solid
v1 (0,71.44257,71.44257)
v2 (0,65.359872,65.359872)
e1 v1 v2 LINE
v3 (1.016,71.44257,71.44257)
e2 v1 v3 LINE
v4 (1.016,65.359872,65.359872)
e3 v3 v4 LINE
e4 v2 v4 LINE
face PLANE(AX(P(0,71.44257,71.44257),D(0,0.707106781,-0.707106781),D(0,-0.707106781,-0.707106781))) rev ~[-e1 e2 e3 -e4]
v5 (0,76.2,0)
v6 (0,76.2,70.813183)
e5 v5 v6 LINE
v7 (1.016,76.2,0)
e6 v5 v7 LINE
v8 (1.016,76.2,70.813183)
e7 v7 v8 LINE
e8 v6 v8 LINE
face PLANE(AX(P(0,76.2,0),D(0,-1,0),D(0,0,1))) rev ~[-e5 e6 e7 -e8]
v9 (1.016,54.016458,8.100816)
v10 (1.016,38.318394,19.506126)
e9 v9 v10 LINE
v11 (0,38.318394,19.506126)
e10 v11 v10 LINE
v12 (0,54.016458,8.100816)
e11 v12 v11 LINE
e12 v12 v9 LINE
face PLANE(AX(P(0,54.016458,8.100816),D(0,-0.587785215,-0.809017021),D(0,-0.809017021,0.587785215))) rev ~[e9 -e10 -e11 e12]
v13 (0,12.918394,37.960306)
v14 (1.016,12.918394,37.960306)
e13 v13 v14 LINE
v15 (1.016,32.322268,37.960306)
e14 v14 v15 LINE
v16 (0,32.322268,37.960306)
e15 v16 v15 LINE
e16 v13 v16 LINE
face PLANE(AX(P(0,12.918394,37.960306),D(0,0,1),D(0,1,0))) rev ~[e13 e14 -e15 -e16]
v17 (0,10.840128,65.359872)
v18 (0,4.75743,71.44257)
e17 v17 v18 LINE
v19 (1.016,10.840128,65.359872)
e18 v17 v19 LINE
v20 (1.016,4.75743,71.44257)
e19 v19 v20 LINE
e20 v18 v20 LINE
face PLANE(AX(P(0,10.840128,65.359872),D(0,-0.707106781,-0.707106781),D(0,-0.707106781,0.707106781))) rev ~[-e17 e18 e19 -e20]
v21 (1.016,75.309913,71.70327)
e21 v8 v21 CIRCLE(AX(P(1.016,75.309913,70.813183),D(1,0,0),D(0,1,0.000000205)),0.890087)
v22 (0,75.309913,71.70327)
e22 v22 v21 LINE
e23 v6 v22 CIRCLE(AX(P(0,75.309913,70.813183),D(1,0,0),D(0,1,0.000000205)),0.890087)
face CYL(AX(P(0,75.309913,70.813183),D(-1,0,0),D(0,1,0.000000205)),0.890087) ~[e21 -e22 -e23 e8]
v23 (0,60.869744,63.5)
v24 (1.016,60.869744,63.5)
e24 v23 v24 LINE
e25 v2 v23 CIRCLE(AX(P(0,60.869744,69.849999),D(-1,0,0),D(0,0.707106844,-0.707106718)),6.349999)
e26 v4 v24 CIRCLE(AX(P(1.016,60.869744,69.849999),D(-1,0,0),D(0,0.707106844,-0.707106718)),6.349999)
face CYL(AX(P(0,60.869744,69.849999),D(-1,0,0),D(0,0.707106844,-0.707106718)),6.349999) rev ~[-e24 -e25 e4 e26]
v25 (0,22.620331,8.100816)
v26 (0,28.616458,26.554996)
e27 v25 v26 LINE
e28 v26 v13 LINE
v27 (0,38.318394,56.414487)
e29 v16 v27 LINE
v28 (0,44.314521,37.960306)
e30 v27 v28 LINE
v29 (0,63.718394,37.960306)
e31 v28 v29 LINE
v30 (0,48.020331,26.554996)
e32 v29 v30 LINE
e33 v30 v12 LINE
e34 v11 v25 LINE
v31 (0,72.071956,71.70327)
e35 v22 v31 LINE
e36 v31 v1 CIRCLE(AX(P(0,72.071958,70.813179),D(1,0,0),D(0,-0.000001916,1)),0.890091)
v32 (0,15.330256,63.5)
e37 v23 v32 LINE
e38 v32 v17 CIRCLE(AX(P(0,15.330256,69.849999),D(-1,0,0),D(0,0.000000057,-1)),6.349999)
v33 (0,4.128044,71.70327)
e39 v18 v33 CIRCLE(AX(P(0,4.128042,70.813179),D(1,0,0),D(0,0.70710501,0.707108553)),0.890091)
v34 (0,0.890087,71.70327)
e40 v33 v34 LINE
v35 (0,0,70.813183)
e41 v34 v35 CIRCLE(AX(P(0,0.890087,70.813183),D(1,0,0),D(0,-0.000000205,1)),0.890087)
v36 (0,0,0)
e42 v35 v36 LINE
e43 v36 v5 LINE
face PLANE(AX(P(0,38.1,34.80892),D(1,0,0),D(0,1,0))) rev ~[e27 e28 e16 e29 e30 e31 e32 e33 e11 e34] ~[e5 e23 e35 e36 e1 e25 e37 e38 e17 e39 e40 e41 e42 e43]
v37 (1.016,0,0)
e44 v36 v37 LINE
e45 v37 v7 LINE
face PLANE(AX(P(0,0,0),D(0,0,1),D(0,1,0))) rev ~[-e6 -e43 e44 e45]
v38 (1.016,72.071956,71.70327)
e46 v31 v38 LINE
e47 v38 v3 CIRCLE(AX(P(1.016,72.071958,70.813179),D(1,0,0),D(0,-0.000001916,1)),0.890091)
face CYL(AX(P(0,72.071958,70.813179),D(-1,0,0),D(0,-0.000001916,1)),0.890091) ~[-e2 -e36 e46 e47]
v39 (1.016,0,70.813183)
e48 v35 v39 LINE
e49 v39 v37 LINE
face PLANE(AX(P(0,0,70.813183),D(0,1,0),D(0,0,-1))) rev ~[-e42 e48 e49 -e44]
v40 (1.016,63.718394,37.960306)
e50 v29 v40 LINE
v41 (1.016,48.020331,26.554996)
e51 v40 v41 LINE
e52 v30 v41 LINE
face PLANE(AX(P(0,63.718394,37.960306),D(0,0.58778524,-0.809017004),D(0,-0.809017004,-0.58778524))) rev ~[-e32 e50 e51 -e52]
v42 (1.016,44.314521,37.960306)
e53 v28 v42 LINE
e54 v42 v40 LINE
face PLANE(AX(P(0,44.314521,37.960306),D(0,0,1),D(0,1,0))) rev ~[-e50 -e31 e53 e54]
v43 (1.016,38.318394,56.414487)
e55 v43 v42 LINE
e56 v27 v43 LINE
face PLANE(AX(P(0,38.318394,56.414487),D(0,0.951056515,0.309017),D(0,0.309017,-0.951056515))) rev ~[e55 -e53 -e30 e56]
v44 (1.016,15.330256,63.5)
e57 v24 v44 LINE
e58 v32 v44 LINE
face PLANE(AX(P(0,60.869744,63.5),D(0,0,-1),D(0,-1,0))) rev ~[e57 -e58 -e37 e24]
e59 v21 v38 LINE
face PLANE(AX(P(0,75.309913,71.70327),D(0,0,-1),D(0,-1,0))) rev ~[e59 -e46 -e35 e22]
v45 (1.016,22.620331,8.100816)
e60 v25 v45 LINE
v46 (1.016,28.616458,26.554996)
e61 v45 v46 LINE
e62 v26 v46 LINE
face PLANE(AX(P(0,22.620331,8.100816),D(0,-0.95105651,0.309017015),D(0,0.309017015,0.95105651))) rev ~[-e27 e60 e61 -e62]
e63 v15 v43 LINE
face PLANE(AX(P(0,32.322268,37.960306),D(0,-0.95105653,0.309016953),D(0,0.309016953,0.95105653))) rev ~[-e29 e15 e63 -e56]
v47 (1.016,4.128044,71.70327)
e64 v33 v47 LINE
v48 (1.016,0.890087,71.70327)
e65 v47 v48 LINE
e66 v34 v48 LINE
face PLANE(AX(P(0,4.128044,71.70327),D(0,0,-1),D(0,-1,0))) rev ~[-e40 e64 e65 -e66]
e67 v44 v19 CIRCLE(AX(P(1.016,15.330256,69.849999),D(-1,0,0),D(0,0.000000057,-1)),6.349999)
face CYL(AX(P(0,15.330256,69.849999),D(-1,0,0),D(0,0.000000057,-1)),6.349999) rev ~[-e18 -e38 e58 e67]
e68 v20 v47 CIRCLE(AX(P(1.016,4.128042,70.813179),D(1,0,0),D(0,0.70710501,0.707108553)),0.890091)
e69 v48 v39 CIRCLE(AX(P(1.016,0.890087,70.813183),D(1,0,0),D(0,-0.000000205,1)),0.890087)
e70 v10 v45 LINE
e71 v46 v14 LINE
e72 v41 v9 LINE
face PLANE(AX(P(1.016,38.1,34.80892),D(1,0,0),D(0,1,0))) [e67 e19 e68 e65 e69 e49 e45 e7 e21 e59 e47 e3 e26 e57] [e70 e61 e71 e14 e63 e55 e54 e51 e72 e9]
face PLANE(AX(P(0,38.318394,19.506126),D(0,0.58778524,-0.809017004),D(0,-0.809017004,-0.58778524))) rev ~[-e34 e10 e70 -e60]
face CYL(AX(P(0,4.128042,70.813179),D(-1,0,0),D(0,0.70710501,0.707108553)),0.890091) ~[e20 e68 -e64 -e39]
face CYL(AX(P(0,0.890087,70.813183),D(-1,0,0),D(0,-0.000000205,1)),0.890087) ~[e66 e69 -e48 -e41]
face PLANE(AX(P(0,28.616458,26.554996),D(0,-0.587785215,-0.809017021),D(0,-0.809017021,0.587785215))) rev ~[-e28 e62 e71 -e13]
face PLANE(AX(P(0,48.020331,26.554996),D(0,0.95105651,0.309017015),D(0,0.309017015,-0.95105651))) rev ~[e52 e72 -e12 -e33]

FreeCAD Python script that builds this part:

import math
import FreeCAD as App
import Part
import Sketcher

V = App.Vector
Q = App.Units.Quantity


def add_polygon(sketch, points):
    """Adds a closed chain of lines whose ends are joined by coincident constraints."""
    first, n = sketch.GeometryCount, len(points)
    for a, b in zip(points, points[1:] + points[:1]):
        sketch.addGeometry(Part.LineSegment(App.Vector(*a, 0), App.Vector(*b, 0)), False)
    for i in range(n):
        sketch.addConstraint(Sketcher.Constraint("Coincident", first + i, 2, first + (i + 1) % n, 1))

doc = App.newDocument("Part")
body = doc.addObject("PartDesign::Body", "Body")

# Sketch on YZ plane
sketch1 = body.newObject("Sketcher::SketchObject", "Sketch")
sketch1.AttachmentSupport = (doc.getObject("YZ_Plane"), [""])
sketch1.MapMode = "FlatFace"
sketch1.addGeometry(Part.LineSegment(V(0, 70.8, 0), V(0, 0, 0)), False)  # 0
sketch1.addGeometry(Part.LineSegment(V(0, 0, 0), V(76.2, 0, 0)), False)  # 1
sketch1.addGeometry(Part.LineSegment(V(76.2, 0, 0), V(76.2, 70.8, 0)), False)  # 2
sketch1.addGeometry(Part.ArcOfCircle(Part.Circle(V(75.3, 70.8, 0), V(0, 0, 1), 0.9), math.radians(0), math.radians(90)), False)  # 3
sketch1.addGeometry(Part.LineSegment(V(75.3, 71.7, 0), V(72.1, 71.7, 0)), False)  # 4
sketch1.addGeometry(Part.ArcOfCircle(Part.Circle(V(72.1, 70.8, 0), V(0, 0, 1), 0.9), math.radians(90), math.radians(135)), False)  # 5
sketch1.addGeometry(Part.LineSegment(V(71.4, 71.4, 0), V(65.4, 65.4, 0)), False)  # 6
sketch1.addGeometry(Part.ArcOfCircle(Part.Circle(V(60.9, 69.8, 0), V(0, 0, 1), 6.3), math.radians(-90), math.radians(-45)), False)  # 7
sketch1.addGeometry(Part.LineSegment(V(60.9, 63.5, 0), V(15.3, 63.5, 0)), False)  # 8
sketch1.addGeometry(Part.ArcOfCircle(Part.Circle(V(15.3, 69.8, 0), V(0, 0, 1), 6.3), math.radians(-135), math.radians(-90)), False)  # 9
sketch1.addGeometry(Part.LineSegment(V(10.8, 65.4, 0), V(4.8, 71.4, 0)), False)  # 10
sketch1.addGeometry(Part.ArcOfCircle(Part.Circle(V(4.1, 70.8, 0), V(0, 0, 1), 0.9), math.radians(45), math.radians(90)), False)  # 11
sketch1.addGeometry(Part.LineSegment(V(4.1, 71.7, 0), V(0.9, 71.7, 0)), False)  # 12
sketch1.addGeometry(Part.ArcOfCircle(Part.Circle(V(0.9, 70.8, 0), V(0, 0, 1), 0.9), math.radians(90), math.radians(180)), False)  # 13
add_polygon(sketch1, [(22.6, 8.1), (28.6, 26.6), (12.9, 38), (32.3, 38), (38.3, 56.4), (44.3, 38), (63.7, 38), (48, 26.6), (54, 8.1), (38.3, 19.5)])  # lines 14-23
sketch1.addConstraint(Sketcher.Constraint("Coincident", 0, 2, 1, 1))
sketch1.addConstraint(Sketcher.Constraint("Coincident", 1, 2, 2, 1))
sketch1.addConstraint(Sketcher.Constraint("Tangent", 2, 2, 3, 1))
sketch1.addConstraint(Sketcher.Constraint("Tangent", 3, 2, 4, 1))
sketch1.addConstraint(Sketcher.Constraint("Tangent", 4, 2, 5, 1))
sketch1.addConstraint(Sketcher.Constraint("Coincident", 5, 2, 6, 1))
sketch1.addConstraint(Sketcher.Constraint("Tangent", 6, 2, 7, 2))
sketch1.addConstraint(Sketcher.Constraint("Tangent", 7, 1, 8, 1))
sketch1.addConstraint(Sketcher.Constraint("Tangent", 8, 2, 9, 2))
sketch1.addConstraint(Sketcher.Constraint("Tangent", 9, 1, 10, 1))
sketch1.addConstraint(Sketcher.Constraint("Coincident", 10, 2, 11, 1))
sketch1.addConstraint(Sketcher.Constraint("Tangent", 11, 2, 12, 1))
sketch1.addConstraint(Sketcher.Constraint("Tangent", 12, 2, 13, 1))
sketch1.addConstraint(Sketcher.Constraint("Tangent", 13, 2, 0, 1))
sketch1.addConstraint(Sketcher.Constraint("Vertical", 0))
sketch1.addConstraint(Sketcher.Constraint("Horizontal", 1))
sketch1.addConstraint(Sketcher.Constraint("Vertical", 2))
sketch1.addConstraint(Sketcher.Constraint("Horizontal", 4))
sketch1.addConstraint(Sketcher.Constraint("Horizontal", 8))
sketch1.addConstraint(Sketcher.Constraint("Horizontal", 12))
sketch1.addConstraint(Sketcher.Constraint("Horizontal", 16))
sketch1.addConstraint(Sketcher.Constraint("Horizontal", 19))
sketch1.addConstraint(Sketcher.Constraint("Coincident", 0, 2, -1, 1))
sketch1.addConstraint(Sketcher.Constraint("Equal", 7, 9))
sketch1.addConstraint(Sketcher.Constraint("Equal", 5, 11))
sketch1.addConstraint(Sketcher.Constraint("Equal", 3, 13))
sketch1.addConstraint(Sketcher.Constraint("Perpendicular", 6, 10))
sketch1.addConstraint(Sketcher.Constraint("Parallel", 14, 17))
sketch1.addConstraint(Sketcher.Constraint("Parallel", 18, 21))
sketch1.addConstraint(Sketcher.Constraint("Parallel", 15, 22))
sketch1.addConstraint(Sketcher.Constraint("Parallel", 20, 23))
sketch1.addConstraint(Sketcher.Constraint("Horizontal", 5, 3, 11, 3))
sketch1.addConstraint(Sketcher.Constraint("Horizontal", 6, 2, 9, 1))
sketch1.addConstraint(Sketcher.Constraint("Horizontal", 5, 2, 10, 2))
sketch1.addConstraint(Sketcher.Constraint("Horizontal", 16, 2, 18, 2))
sketch1.addConstraint(Sketcher.Constraint("Horizontal", 14, 2, 20, 2))
sketch1.addConstraint(Sketcher.Constraint("Horizontal", 21, 2, 23, 2))
sketch1.addConstraint(Sketcher.Constraint("Vertical", 17, 2, 22, 2))
sketch1.addConstraint(Sketcher.Constraint("Equal", 4, 12))
sketch1.addConstraint(Sketcher.Constraint("Equal", 16, 19))
sketch1.addConstraint(Sketcher.Constraint("Equal", 14, 15))
sketch1.addConstraint(Sketcher.Constraint("Equal", 15, 17))
sketch1.addConstraint(Sketcher.Constraint("Equal", 18, 20))
sketch1.addConstraint(Sketcher.Constraint("Equal", 21, 22))
sketch1.addConstraint(Sketcher.Constraint("DistanceX", 1, 1, 1, 2, Q("3 in")))
sketch1.addConstraint(Sketcher.Constraint("Radius", 7, Q("0.25 in")))
sketch1.addConstraint(Sketcher.Constraint("Angle", 14, Q("71.999999 deg")))
sketch1.addConstraint(Sketcher.Constraint("Angle", 15, Q("144.000003 deg")))
sketch1.addConstraint(Sketcher.Constraint("DistanceX", 17, 2, 19, 2, Q("1 in")))
sketch1.addConstraint(Sketcher.Constraint("DistanceY", -1, 1, 7, 1, Q("2.5 in")))
sketch1.addConstraint(Sketcher.Constraint("Radius", 5, Q("0.890091 mm")))
sketch1.addConstraint(Sketcher.Constraint("Radius", 3, Q("0.890087 mm")))
sketch1.addConstraint(Sketcher.Constraint("DistanceY", 5, 2, 4, 2, Q("0.2607 mm")))
sketch1.addConstraint(Sketcher.Constraint("DistanceX", 6, 2, 5, 2, Q("6.082698 mm")))
sketch1.addConstraint(Sketcher.Constraint("DistanceX", 4, 2, 4, 1, Q("3.237957 mm")))
sketch1.addConstraint(Sketcher.Constraint("DistanceX", -1, 1, 14, 2, Q("28.616458 mm")))
sketch1.addConstraint(Sketcher.Constraint("DistanceY", 17, 2, 7, 3, Q("13.435512 mm")))
pad1 = body.newObject("PartDesign::Pad", "Pad")
pad1.Profile = sketch1
pad1.Length = Q("0.04 in")

doc.recompute()
